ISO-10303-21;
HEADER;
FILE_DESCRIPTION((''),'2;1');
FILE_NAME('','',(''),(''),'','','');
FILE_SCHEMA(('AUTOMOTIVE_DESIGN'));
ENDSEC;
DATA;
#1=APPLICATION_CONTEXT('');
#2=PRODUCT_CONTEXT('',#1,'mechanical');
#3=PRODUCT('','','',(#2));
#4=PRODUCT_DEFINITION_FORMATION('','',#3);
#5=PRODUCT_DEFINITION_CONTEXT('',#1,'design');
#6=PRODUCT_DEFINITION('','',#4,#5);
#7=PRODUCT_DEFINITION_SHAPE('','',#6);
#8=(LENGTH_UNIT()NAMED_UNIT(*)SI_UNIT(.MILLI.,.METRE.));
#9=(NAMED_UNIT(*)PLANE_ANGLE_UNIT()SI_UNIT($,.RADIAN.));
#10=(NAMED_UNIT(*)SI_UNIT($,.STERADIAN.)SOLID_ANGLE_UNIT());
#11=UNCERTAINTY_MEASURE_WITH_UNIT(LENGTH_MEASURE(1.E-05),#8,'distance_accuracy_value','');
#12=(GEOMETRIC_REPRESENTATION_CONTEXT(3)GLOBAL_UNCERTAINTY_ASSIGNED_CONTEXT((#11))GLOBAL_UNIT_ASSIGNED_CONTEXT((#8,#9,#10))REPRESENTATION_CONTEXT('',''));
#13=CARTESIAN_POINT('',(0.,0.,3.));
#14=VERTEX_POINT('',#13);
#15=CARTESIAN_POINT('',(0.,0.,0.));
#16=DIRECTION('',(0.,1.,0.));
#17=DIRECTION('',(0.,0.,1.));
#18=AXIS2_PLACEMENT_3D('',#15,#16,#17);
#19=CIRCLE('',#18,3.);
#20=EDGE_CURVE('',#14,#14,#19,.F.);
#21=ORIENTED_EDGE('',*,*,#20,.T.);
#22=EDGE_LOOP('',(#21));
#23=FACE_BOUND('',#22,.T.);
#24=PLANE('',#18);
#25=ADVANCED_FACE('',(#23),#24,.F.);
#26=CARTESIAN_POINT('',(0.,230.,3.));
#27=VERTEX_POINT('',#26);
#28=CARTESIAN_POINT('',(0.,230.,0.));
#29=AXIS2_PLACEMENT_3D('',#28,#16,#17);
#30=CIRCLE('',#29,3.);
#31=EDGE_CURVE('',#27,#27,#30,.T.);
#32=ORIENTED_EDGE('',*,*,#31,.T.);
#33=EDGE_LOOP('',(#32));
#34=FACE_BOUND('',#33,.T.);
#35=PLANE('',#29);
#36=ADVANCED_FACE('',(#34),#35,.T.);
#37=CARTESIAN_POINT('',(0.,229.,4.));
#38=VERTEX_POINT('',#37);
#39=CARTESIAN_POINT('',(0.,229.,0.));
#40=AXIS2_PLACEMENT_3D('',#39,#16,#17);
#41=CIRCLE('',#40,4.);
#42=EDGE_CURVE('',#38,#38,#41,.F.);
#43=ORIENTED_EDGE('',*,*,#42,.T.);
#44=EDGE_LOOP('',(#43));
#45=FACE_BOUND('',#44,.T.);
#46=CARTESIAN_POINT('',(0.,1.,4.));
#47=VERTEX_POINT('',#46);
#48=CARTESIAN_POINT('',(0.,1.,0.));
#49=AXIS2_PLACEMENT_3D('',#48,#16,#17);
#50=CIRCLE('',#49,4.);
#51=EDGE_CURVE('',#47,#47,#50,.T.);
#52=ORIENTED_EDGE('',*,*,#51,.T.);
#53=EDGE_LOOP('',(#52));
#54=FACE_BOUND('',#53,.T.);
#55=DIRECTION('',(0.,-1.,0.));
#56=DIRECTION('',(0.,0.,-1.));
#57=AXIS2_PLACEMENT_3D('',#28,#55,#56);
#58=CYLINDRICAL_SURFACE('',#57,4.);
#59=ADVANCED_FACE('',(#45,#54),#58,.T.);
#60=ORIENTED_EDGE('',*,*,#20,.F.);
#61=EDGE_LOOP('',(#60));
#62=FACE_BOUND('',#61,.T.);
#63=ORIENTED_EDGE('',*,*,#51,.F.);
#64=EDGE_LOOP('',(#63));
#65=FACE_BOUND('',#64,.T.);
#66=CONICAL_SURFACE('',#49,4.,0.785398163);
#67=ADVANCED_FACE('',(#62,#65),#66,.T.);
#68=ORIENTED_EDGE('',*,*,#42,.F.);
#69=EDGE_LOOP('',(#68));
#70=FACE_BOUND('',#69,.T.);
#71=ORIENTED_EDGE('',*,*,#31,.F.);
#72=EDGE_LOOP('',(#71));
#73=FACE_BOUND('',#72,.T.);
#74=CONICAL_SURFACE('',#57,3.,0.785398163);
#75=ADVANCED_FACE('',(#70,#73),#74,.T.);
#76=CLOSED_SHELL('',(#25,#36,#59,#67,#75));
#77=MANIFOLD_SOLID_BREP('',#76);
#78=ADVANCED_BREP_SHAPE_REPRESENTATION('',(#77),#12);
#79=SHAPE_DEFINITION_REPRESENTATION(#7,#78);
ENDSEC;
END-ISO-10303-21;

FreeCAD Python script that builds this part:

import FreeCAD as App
import Part
import Sketcher

V = App.Vector


def edges_at(feature, points):
    """Names of the edges that pass closest to the given points."""
    edges = feature.Shape.Edges
    near = lambda p: min(range(len(edges)), key=lambda i: edges[i].distToShape(Part.Vertex(*p))[0])
    return sorted({f"Edge{near(p) + 1}" for p in points})

doc = App.newDocument("Part")
body = doc.addObject("PartDesign::Body", "Body")

# Sketch on XZ plane
sketch1 = doc.addObject("Sketcher::SketchObject", "Sketch")
body.addObject(sketch1)
sketch1.AttachmentSupport = (doc.XZ_Plane, [""])
sketch1.MapMode = "FlatFace"
sketch1.addGeometry(Part.Circle(V(0, 0, 0), V(0, 0, 1), 4), False)
sketch1.addConstraint(Sketcher.Constraint("Coincident", 0, 3, -1, 1))
sketch1.addConstraint(Sketcher.Constraint("Diameter", 0, 8.0))
pad1 = doc.addObject("PartDesign::Pad", "Pad")
body.addObject(pad1)
pad1.Profile = sketch1
pad1.Length = 230
pad1.Reversed = True
doc.recompute()

chamfer = doc.addObject("PartDesign::Chamfer", "Chamfer")
body.addObject(chamfer)
chamfer.Base = (pad1, edges_at(pad1, [(-4, 0, 0), (-4, 230, 0)]))
chamfer.Size = 1

doc.recompute()
